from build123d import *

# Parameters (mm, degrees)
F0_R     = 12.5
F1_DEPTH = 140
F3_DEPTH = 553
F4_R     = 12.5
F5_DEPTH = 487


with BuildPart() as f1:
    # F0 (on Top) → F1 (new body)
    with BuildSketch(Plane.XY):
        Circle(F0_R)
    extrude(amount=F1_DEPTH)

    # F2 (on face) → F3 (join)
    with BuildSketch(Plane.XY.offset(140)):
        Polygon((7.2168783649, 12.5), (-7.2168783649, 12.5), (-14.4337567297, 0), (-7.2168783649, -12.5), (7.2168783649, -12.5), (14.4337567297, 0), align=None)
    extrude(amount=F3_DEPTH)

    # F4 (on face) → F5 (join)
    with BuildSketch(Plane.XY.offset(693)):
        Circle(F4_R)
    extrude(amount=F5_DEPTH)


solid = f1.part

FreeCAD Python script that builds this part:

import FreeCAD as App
import Part
import Sketcher
from FreeCAD import Vector
Q = App.Units.Quantity

doc = App.newDocument("Part")
body = doc.addObject("PartDesign::Body", "Body")

# Sketch on XY plane
sketch1 = body.newObject("Sketcher::SketchObject", "Sketch")
sketch1.AttachmentSupport = (doc.getObject("XY_Plane"), [""])
sketch1.MapMode = "FlatFace"
sketch1.addGeometry(Part.Circle(Vector(0, 0, 0), Vector(0, 0, 1), 12), False)
sketch1.addConstraint(Sketcher.Constraint("Coincident", 0, 3, -1, 1))
sketch1.addConstraint(Sketcher.Constraint("Diameter", 0, Q("25 mm")))
pad1 = body.newObject("PartDesign::Pad", "Pad")
pad1.Profile = sketch1
pad1.Length = 140

# Sketch on XY plane
sketch2 = body.newObject("Sketcher::SketchObject", "Sketch001")
sketch2.AttachmentSupport = (doc.getObject("XY_Plane"), [""])
sketch2.MapMode = "FlatFace"
sketch2.AttachmentOffset = App.Placement(Vector(0, 0, 140), App.Rotation())
sketch2.addGeometry(Part.LineSegment(Vector(7, 12, 0), Vector(-7, 12, 0)), False)
sketch2.addGeometry(Part.LineSegment(Vector(-7, 12, 0), Vector(-14, 0, 0)), False)
sketch2.addGeometry(Part.LineSegment(Vector(-14, 0, 0), Vector(-7, -12, 0)), False)
sketch2.addGeometry(Part.LineSegment(Vector(-7, -12, 0), Vector(7, -12, 0)), False)
sketch2.addGeometry(Part.LineSegment(Vector(7, -12, 0), Vector(14, 0, 0)), False)
sketch2.addGeometry(Part.LineSegment(Vector(14, 0, 0), Vector(7, 12, 0)), False)
sketch2.addConstraint(Sketcher.Constraint("Coincident", 0, 2, 1, 1))
sketch2.addConstraint(Sketcher.Constraint("Coincident", 1, 2, 2, 1))
sketch2.addConstraint(Sketcher.Constraint("Coincident", 2, 2, 3, 1))
sketch2.addConstraint(Sketcher.Constraint("Coincident", 3, 2, 4, 1))
sketch2.addConstraint(Sketcher.Constraint("Coincident", 4, 2, 5, 1))
sketch2.addConstraint(Sketcher.Constraint("Coincident", 5, 2, 0, 1))
sketch2.addConstraint(Sketcher.Constraint("Horizontal", 0))
sketch2.addConstraint(Sketcher.Constraint("Horizontal", 3))
sketch2.addConstraint(Sketcher.Constraint("Symmetric", 0, 2, 3, 2, -1, 1))
sketch2.addConstraint(Sketcher.Constraint("Symmetric", 1, 2, 4, 2, -1, 1))
sketch2.addConstraint(Sketcher.Constraint("PointOnObject", 1, 2, -1))
sketch2.addConstraint(Sketcher.Constraint("Parallel", 2, 5))
sketch2.addConstraint(Sketcher.Constraint("Vertical", 0, 2, 2, 2))
sketch2.addConstraint(Sketcher.Constraint("Angle", 1, Q("-120 deg")))
sketch2.addConstraint(Sketcher.Constraint("DistanceY", 2, 2, 0, 2, Q("25 mm")))
sketch2.addConstraint(Sketcher.Constraint("DistanceX", 0, 2, 0, 1, Q("14.433757 mm")))
pad2 = body.newObject("PartDesign::Pad", "Pad001")
pad2.Profile = sketch2
pad2.Length = 553

# Sketch on XY plane
sketch3 = body.newObject("Sketcher::SketchObject", "Sketch002")
sketch3.AttachmentSupport = (doc.getObject("XY_Plane"), [""])
sketch3.MapMode = "FlatFace"
sketch3.AttachmentOffset = App.Placement(Vector(0, 0, 693), App.Rotation())
sketch3.addGeometry(Part.Circle(Vector(0, 0, 0), Vector(0, 0, 1), 12), False)
sketch3.addConstraint(Sketcher.Constraint("Coincident", 0, 3, -1, 1))
sketch3.addConstraint(Sketcher.Constraint("Diameter", 0, Q("25 mm")))
pad3 = body.newObject("PartDesign::Pad", "Pad002")
pad3.Profile = sketch3
pad3.Length = 487

doc.recompute()
